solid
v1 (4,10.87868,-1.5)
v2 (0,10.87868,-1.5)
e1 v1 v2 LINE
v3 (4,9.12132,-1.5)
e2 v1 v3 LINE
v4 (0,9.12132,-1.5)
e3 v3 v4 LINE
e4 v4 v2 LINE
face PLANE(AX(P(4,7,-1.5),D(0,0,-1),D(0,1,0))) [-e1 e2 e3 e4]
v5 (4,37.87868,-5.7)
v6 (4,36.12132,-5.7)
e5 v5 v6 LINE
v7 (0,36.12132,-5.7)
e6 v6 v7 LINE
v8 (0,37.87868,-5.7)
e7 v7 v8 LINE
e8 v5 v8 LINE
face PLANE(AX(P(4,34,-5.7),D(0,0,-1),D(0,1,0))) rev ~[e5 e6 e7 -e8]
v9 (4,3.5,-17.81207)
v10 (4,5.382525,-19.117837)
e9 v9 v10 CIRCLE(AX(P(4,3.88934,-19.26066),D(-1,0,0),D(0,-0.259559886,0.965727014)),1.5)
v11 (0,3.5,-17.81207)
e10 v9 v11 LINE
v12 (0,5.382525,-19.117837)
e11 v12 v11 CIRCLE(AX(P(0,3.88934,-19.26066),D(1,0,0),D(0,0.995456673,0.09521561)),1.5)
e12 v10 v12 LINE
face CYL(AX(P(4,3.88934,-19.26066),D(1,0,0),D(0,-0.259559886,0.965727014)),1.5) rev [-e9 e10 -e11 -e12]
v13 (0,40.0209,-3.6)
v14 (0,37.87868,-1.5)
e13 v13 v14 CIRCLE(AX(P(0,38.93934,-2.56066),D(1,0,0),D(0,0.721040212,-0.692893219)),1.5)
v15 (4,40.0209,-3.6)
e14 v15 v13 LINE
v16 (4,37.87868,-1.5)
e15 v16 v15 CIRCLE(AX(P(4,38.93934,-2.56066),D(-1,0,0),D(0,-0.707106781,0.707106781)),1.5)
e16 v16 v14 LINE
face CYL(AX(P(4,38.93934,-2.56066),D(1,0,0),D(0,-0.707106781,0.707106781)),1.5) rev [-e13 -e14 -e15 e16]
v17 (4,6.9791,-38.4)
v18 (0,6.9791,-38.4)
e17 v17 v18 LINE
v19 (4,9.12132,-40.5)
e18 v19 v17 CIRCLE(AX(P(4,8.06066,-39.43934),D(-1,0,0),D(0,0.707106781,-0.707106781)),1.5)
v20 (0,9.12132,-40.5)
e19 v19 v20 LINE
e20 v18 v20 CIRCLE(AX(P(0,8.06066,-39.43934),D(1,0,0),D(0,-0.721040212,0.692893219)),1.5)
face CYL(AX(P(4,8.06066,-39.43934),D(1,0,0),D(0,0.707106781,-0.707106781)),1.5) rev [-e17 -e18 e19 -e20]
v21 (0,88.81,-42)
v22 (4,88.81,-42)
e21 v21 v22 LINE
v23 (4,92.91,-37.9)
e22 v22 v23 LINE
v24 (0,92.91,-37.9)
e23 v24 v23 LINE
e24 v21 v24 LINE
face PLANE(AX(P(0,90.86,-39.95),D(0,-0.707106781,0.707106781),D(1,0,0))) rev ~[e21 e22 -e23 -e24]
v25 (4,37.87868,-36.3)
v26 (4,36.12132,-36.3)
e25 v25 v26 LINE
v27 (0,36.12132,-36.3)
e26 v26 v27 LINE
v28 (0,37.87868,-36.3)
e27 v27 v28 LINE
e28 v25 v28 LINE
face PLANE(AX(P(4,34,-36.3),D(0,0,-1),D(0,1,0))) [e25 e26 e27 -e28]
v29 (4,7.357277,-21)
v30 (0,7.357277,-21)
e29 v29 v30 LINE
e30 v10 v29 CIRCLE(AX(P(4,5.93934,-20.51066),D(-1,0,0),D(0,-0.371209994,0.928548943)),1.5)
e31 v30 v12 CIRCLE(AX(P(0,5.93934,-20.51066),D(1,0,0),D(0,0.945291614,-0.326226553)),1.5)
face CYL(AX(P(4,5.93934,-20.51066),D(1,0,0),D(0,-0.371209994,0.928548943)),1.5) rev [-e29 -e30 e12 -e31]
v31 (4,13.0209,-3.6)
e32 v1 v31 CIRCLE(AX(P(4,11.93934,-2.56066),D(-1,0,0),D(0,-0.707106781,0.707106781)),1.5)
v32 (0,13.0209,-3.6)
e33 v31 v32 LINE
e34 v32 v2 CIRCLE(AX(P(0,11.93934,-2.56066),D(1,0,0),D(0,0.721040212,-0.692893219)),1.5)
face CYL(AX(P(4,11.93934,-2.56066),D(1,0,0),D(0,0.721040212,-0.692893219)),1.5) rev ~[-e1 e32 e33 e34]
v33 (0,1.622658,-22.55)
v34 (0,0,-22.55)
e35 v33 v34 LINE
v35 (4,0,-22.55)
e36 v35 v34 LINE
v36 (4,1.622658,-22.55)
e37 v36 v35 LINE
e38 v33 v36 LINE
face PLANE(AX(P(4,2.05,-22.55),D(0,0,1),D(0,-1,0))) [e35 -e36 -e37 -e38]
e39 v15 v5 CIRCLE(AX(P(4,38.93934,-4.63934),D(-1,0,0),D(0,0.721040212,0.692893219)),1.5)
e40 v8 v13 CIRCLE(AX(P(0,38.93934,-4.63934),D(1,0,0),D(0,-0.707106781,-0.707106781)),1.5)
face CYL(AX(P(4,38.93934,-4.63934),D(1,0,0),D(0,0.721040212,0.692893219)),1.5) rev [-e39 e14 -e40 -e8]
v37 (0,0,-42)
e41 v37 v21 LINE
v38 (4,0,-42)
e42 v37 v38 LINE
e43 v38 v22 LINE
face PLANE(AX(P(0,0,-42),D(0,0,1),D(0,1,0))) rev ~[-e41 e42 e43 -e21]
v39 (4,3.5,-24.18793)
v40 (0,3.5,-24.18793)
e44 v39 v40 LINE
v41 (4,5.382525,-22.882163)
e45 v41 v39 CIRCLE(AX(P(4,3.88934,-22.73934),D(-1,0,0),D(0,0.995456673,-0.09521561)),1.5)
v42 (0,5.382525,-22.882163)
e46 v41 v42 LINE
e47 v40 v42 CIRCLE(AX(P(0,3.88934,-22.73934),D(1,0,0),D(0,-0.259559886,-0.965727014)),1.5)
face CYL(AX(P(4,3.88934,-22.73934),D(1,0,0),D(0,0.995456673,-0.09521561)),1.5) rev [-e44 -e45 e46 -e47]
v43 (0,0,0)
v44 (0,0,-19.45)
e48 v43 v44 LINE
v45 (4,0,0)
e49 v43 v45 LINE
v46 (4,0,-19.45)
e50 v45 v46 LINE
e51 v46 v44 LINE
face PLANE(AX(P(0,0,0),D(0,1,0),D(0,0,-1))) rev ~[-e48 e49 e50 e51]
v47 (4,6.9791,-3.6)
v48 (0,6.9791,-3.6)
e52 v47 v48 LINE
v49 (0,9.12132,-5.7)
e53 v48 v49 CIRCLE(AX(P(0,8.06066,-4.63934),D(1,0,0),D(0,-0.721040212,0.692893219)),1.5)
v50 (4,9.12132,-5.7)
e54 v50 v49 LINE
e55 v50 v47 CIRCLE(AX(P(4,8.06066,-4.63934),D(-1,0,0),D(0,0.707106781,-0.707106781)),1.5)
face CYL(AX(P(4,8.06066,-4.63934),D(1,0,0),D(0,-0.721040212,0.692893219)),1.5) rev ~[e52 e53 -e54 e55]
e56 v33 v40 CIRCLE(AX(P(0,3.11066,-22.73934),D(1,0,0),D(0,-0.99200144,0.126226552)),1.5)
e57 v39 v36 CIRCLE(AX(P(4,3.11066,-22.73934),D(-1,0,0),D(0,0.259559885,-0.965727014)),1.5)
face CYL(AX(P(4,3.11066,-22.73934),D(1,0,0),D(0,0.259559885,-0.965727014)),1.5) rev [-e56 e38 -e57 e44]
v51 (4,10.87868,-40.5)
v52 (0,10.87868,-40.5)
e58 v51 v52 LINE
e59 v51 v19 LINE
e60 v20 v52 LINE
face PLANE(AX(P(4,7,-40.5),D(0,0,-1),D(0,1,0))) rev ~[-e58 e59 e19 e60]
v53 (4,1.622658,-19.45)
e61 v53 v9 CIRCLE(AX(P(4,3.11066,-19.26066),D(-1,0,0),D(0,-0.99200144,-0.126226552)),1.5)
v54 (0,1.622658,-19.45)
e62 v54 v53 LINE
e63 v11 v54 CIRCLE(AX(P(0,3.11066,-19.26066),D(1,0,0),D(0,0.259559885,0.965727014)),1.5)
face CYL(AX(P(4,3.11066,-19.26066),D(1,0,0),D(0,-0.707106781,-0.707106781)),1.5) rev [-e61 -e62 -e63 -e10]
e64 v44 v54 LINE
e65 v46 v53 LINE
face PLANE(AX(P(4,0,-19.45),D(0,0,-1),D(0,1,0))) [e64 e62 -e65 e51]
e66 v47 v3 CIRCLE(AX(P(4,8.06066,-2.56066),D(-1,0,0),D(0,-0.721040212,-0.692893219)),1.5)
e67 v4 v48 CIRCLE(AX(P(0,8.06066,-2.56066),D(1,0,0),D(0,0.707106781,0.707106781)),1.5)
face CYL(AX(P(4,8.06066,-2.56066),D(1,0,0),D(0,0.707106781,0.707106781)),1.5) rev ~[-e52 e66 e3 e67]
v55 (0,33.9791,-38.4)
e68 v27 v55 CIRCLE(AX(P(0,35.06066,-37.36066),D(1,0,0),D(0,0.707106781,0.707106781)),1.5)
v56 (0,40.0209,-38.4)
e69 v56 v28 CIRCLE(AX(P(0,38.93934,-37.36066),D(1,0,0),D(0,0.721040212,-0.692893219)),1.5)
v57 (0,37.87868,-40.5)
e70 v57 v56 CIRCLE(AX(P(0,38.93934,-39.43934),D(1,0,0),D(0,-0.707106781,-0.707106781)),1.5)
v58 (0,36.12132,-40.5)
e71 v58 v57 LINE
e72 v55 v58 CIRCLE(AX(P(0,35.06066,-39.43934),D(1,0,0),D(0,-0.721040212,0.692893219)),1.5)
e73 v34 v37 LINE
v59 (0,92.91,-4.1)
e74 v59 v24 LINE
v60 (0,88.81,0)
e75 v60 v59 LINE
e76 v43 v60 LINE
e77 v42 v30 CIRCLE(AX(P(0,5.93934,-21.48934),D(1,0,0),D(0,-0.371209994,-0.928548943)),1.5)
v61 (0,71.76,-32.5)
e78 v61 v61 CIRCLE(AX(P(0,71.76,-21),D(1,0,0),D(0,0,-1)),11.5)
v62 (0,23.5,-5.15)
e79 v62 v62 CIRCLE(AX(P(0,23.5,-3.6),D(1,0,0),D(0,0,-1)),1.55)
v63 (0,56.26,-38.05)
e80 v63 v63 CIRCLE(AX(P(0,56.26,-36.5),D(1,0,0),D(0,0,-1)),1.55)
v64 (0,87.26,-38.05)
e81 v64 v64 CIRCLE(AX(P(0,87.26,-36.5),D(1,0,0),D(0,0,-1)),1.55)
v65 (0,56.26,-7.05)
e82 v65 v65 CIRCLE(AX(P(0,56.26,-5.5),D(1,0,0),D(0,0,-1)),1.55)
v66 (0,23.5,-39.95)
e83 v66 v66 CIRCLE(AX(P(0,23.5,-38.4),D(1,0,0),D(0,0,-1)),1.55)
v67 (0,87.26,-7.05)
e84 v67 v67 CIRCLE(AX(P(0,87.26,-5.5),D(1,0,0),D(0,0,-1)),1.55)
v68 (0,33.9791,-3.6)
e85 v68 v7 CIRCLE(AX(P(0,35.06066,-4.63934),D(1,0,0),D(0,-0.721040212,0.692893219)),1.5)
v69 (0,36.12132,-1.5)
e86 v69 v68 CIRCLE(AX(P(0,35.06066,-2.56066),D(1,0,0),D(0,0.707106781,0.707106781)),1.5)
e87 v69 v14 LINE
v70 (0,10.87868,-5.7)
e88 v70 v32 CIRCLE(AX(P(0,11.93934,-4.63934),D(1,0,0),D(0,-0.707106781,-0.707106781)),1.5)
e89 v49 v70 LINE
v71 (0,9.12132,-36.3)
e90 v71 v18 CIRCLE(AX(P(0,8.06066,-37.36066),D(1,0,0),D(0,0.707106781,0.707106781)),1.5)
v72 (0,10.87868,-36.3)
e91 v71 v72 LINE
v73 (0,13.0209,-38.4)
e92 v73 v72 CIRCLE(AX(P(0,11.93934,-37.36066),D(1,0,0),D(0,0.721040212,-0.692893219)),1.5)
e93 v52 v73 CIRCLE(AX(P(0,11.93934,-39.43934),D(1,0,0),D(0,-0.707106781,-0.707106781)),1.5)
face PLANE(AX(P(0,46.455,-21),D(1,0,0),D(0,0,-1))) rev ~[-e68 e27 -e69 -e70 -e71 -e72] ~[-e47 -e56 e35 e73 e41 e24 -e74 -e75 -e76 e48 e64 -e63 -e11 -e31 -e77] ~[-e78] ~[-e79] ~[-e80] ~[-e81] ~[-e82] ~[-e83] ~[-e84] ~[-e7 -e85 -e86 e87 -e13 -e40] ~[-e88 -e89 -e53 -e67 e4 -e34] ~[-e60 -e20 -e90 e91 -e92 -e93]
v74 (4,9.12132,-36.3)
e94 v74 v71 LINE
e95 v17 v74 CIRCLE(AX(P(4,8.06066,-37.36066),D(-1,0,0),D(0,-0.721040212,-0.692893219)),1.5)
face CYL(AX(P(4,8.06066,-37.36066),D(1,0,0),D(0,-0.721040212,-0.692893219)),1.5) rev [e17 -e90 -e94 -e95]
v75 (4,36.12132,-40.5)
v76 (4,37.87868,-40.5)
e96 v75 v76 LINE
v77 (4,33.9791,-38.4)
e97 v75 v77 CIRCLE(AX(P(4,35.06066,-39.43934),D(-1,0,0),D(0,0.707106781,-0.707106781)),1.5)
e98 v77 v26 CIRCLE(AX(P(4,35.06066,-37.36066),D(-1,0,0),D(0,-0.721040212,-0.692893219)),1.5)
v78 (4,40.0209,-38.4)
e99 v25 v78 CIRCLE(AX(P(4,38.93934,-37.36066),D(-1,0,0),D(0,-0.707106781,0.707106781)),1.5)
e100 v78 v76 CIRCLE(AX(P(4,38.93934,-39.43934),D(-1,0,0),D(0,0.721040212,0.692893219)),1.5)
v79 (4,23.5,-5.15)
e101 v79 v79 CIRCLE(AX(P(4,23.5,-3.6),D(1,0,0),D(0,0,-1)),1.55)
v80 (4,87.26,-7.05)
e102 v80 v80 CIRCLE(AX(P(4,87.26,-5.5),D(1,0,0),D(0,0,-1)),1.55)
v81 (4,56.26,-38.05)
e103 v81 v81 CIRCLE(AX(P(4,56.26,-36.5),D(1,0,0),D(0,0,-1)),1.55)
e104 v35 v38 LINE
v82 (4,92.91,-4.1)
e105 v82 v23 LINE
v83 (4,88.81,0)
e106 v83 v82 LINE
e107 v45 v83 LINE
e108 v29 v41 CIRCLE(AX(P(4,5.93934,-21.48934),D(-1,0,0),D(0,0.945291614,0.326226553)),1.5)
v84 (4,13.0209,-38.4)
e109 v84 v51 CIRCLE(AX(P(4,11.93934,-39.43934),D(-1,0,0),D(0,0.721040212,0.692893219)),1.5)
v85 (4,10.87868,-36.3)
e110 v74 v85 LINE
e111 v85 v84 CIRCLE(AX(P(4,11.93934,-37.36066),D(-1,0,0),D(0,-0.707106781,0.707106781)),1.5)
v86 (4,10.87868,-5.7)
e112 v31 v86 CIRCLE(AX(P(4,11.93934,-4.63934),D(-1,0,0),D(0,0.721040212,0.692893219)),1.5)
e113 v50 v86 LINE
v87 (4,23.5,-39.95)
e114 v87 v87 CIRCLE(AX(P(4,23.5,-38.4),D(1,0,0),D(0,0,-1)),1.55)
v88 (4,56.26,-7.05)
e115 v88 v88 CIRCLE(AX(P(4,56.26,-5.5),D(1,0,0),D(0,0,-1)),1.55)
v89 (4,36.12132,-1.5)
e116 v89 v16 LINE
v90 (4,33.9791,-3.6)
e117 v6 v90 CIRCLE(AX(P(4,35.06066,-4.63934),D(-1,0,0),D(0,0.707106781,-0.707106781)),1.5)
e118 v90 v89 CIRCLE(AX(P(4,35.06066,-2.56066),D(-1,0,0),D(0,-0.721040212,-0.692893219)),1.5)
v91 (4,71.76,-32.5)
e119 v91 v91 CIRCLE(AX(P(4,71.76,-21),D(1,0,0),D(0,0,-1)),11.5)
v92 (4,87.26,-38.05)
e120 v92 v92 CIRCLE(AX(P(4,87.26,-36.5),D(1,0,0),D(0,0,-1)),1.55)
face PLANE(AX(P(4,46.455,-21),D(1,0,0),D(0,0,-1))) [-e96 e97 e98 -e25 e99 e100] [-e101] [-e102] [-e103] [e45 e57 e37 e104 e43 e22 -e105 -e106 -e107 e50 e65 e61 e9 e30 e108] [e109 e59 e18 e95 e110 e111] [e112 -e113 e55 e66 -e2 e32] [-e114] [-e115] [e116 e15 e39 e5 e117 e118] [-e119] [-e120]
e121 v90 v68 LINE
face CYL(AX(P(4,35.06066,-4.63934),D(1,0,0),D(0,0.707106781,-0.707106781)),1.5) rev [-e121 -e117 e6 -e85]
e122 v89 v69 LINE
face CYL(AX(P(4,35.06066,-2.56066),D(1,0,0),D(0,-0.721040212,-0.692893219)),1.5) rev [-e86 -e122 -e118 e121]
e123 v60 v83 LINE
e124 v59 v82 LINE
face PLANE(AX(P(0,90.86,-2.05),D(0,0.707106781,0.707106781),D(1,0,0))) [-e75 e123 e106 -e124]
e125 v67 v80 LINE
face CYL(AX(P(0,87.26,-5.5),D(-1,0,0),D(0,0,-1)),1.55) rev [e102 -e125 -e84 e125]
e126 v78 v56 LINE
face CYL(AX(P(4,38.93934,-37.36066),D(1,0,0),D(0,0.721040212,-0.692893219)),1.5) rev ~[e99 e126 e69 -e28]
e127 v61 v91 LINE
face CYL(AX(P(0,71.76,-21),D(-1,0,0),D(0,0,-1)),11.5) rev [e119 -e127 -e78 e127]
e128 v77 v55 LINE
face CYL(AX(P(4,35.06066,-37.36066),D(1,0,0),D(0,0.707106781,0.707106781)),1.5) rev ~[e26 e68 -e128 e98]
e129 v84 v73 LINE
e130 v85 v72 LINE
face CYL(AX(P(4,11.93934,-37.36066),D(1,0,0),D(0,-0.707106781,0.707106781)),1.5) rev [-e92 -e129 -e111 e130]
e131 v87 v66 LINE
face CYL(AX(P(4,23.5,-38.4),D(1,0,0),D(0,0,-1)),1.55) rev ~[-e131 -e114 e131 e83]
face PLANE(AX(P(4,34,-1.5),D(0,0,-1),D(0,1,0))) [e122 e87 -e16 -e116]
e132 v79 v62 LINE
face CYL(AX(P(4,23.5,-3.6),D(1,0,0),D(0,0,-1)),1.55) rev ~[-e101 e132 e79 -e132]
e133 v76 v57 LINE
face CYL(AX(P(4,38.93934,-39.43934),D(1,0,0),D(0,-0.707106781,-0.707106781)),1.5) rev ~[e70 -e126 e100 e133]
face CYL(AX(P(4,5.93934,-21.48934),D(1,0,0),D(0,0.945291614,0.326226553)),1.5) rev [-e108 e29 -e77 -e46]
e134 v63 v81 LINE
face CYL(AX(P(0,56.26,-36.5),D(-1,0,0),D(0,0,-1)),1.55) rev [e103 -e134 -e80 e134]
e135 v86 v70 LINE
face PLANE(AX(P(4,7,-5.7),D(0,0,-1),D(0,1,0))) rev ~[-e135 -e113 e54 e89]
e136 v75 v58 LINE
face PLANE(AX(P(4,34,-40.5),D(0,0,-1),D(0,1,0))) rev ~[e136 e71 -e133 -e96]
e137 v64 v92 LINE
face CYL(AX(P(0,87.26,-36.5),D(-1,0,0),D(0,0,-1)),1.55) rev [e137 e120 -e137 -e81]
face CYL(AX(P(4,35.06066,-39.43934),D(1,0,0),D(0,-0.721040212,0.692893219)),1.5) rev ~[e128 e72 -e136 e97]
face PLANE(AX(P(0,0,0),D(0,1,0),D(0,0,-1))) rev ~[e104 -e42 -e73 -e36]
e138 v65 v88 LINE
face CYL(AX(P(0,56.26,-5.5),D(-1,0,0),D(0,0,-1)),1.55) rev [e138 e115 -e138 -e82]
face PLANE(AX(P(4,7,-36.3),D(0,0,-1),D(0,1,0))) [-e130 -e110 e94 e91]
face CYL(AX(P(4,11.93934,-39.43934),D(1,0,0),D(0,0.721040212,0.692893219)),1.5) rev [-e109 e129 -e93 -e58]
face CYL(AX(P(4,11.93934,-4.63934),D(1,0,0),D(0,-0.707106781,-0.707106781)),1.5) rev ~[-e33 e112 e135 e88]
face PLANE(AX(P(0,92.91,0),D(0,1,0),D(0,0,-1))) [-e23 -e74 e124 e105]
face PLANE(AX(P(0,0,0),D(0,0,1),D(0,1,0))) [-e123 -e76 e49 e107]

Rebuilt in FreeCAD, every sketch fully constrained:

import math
import FreeCAD as App
import Part
import Sketcher

V = App.Vector
Q = App.Units.Quantity


def edges_at(feature, points):
    """Names of the edges that pass closest to the given points."""
    edges = feature.Shape.Edges
    near = lambda p: min(range(len(edges)), key=lambda i: edges[i].distToShape(Part.Vertex(*p))[0])
    return sorted({f"Edge{near(p) + 1}" for p in points})


def add_polygon(sketch, points):
    """Adds a closed chain of lines whose ends are joined by coincident constraints."""
    first, n = sketch.GeometryCount, len(points)
    for a, b in zip(points, points[1:] + points[:1]):
        sketch.addGeometry(Part.LineSegment(App.Vector(*a, 0), App.Vector(*b, 0)), False)
    for i in range(n):
        sketch.addConstraint(Sketcher.Constraint("Coincident", first + i, 2, first + (i + 1) % n, 1))

doc = App.newDocument("Part")
body = doc.addObject("PartDesign::Body", "Body")

sketch1 = body.newObject("Sketcher::SketchObject", "Sketch")
sketch1.AttachmentSupport = (doc.getObject("YZ_Plane"), [""])
sketch1.MapMode = "FlatFace"
add_polygon(sketch1, [(92.91, 0), (0, 0), (0, -42), (92.91, -42)])
sketch1.addGeometry(Part.Circle(V(56.26, -5.5, 0), V(0, 0, 1), 1.55), False)
sketch1.addGeometry(Part.Circle(V(56.26, -36.5, 0), V(0, 0, 1), 1.55), False)
sketch1.addGeometry(Part.Circle(V(87.26, -5.5, 0), V(0, 0, 1), 1.55), False)
sketch1.addGeometry(Part.Circle(V(71.76, -21, 0), V(0, 0, 1), 11.5), False)
sketch1.addGeometry(Part.Circle(V(87.26, -36.5, 0), V(0, 0, 1), 1.55), False)
sketch1.addConstraint(Sketcher.Constraint("Horizontal", 0))
sketch1.addConstraint(Sketcher.Constraint("Vertical", 1))
sketch1.addConstraint(Sketcher.Constraint("Horizontal", 2))
sketch1.addConstraint(Sketcher.Constraint("Vertical", 3))
sketch1.addConstraint(Sketcher.Constraint("Coincident", 0, 2, -1, 1))
sketch1.addConstraint(Sketcher.Constraint("Equal", 4, 5))
sketch1.addConstraint(Sketcher.Constraint("Equal", 5, 6))
sketch1.addConstraint(Sketcher.Constraint("Equal", 6, 8))
sketch1.addConstraint(Sketcher.Constraint("Horizontal", 4, 3, 6, 3))
sketch1.addConstraint(Sketcher.Constraint("Horizontal", 5, 3, 8, 3))
sketch1.addConstraint(Sketcher.Constraint("Vertical", 4, 3, 5, 3))
sketch1.addConstraint(Sketcher.Constraint("Vertical", 6, 3, 8, 3))
sketch1.addConstraint(Sketcher.Constraint("Diameter", 7, Q("23 mm")))
sketch1.addConstraint(Sketcher.Constraint("Diameter", 4, Q("3.1 mm")))
sketch1.addConstraint(Sketcher.Constraint("DistanceY", 1, 2, 1, 1, Q("42 mm")))
sketch1.addConstraint(Sketcher.Constraint("DistanceY", 7, 3, -1, 1, Q("21 mm")))
sketch1.addConstraint(Sketcher.Constraint("DistanceY", 5, 3, 4, 3, Q("31 mm")))
sketch1.addConstraint(Sketcher.Constraint("DistanceX", 4, 3, 6, 3, Q("31 mm")))
sketch1.addConstraint(Sketcher.Constraint("DistanceX", 0, 2, 0, 1, Q("92.91 mm")))
sketch1.addConstraint(Sketcher.Constraint("DistanceY", 4, 3, -1, 1, Q("5.5 mm")))
sketch1.addConstraint(Sketcher.Constraint("DistanceX", 7, 3, 6, 3, Q("15.5 mm")))
sketch1.addConstraint(Sketcher.Constraint("DistanceX", -1, 1, 4, 3, Q("56.26 mm")))
pad1 = body.newObject("PartDesign::Pad", "Pad")
pad1.Profile = sketch1
pad1.Length = 4

sketch2 = body.newObject("Sketcher::SketchObject", "Sketch001")
sketch2.AttachmentSupport = (doc.getObject("YZ_Plane"), [""])
sketch2.MapMode = "FlatFace"
sketch2.AttachmentOffset = App.Placement(V(0, 0, 4), App.Rotation())
sketch2.addGeometry(Part.Circle(V(23.5, -3.6, 0), V(0, 0, 1), 1.55), False)
sketch2.addGeometry(Part.Circle(V(23.5, -38.4, 0), V(0, 0, 1), 1.55), False)
add_polygon(sketch2, [(40, -1.5), (34, -1.5), (34, -5.7), (40, -5.7)])
add_polygon(sketch2, [(13, -1.5), (7, -1.5), (7, -5.7), (13, -5.7)])
add_polygon(sketch2, [(13, -36.3), (7, -36.3), (7, -40.5), (13, -40.5)])
add_polygon(sketch2, [(40, -36.3), (34, -36.3), (34, -40.5), (40, -40.5)])
sketch2.addConstraint(Sketcher.Constraint("Horizontal", 2))
sketch2.addConstraint(Sketcher.Constraint("Vertical", 3))
sketch2.addConstraint(Sketcher.Constraint("Horizontal", 4))
sketch2.addConstraint(Sketcher.Constraint("Vertical", 5))
sketch2.addConstraint(Sketcher.Constraint("Horizontal", 6))
sketch2.addConstraint(Sketcher.Constraint("Vertical", 7))
sketch2.addConstraint(Sketcher.Constraint("Horizontal", 8))
sketch2.addConstraint(Sketcher.Constraint("Vertical", 9))
sketch2.addConstraint(Sketcher.Constraint("Horizontal", 10))
sketch2.addConstraint(Sketcher.Constraint("Vertical", 11))
sketch2.addConstraint(Sketcher.Constraint("Horizontal", 12))
sketch2.addConstraint(Sketcher.Constraint("Vertical", 13))
sketch2.addConstraint(Sketcher.Constraint("Horizontal", 14))
sketch2.addConstraint(Sketcher.Constraint("Vertical", 15))
sketch2.addConstraint(Sketcher.Constraint("Horizontal", 16))
sketch2.addConstraint(Sketcher.Constraint("Vertical", 17))
sketch2.addConstraint(Sketcher.Constraint("Equal", 0, 1))
sketch2.addConstraint(Sketcher.Constraint("Horizontal", 5, 2, 6, 2))
sketch2.addConstraint(Sketcher.Constraint("Horizontal", 4, 2, 7, 2))
sketch2.addConstraint(Sketcher.Constraint("Horizontal", 13, 2, 14, 2))
sketch2.addConstraint(Sketcher.Constraint("Horizontal", 12, 2, 15, 2))
sketch2.addConstraint(Sketcher.Constraint("Vertical", 0, 3, 1, 3))
sketch2.addConstraint(Sketcher.Constraint("Vertical", 7, 2, 10, 2))
sketch2.addConstraint(Sketcher.Constraint("Vertical", 9, 2, 12, 2))
sketch2.addConstraint(Sketcher.Constraint("Vertical", 3, 2, 14, 2))
sketch2.addConstraint(Sketcher.Constraint("Vertical", 5, 2, 16, 2))
sketch2.addConstraint(Sketcher.Constraint("Equal", 4, 6))
sketch2.addConstraint(Sketcher.Constraint("Equal", 9, 11))
sketch2.addConstraint(Sketcher.Constraint("Diameter", 0, Q("3.1 mm")))
sketch2.addConstraint(Sketcher.Constraint("DistanceX", 2, 2, 2, 1, Q("6 mm")))
sketch2.addConstraint(Sketcher.Constraint("DistanceY", 3, 2, 3, 1, Q("4.2 mm")))
sketch2.addConstraint(Sketcher.Constraint("DistanceX", -1, 1, 2, 2, Q("34 mm")))
sketch2.addConstraint(Sketcher.Constraint("DistanceX", -1, 1, 6, 2, Q("7 mm")))
sketch2.addConstraint(Sketcher.Constraint("DistanceY", 11, 2, 6, 2, Q("39 mm")))
sketch2.addConstraint(Sketcher.Constraint("DistanceX", -1, 1, 0, 3, Q("23.5 mm")))
sketch2.addConstraint(Sketcher.Constraint("DistanceY", 0, 3, -1, 1, Q("3.6 mm")))
sketch2.addConstraint(Sketcher.Constraint("DistanceY", 1, 3, -1, 1, Q("38.4 mm")))
sketch2.addConstraint(Sketcher.Constraint("DistanceY", 2, 2, -1, 1, Q("1.5 mm")))
pocket1 = body.newObject("PartDesign::Pocket", "Pocket")
pocket1.Profile = sketch2
pocket1.Type = "ThroughAll"

sketch3 = body.newObject("Sketcher::SketchObject", "Sketch002")
sketch3.AttachmentSupport = (doc.getObject("YZ_Plane"), [""])
sketch3.MapMode = "FlatFace"
sketch3.AttachmentOffset = App.Placement(V(0, 0, 4), App.Rotation())
add_polygon(sketch3, [(2.05, -19.45), (0, -19.45), (0, -22.55), (2.05, -22.55), (2.05, -23.8), (4.95, -23.8), (4.95, -22.55), (7, -22.55), (7, -19.45), (4.95, -19.45), (4.95, -18.2), (2.05, -18.2)])
sketch3.addConstraint(Sketcher.Constraint("Horizontal", 0))
sketch3.addConstraint(Sketcher.Constraint("Vertical", 1))
sketch3.addConstraint(Sketcher.Constraint("Horizontal", 2))
sketch3.addConstraint(Sketcher.Constraint("Vertical", 3))
sketch3.addConstraint(Sketcher.Constraint("Horizontal", 4))
sketch3.addConstraint(Sketcher.Constraint("Vertical", 5))
sketch3.addConstraint(Sketcher.Constraint("Horizontal", 6))
sketch3.addConstraint(Sketcher.Constraint("Vertical", 7))
sketch3.addConstraint(Sketcher.Constraint("Horizontal", 8))
sketch3.addConstraint(Sketcher.Constraint("Vertical", 9))
sketch3.addConstraint(Sketcher.Constraint("Horizontal", 10))
sketch3.addConstraint(Sketcher.Constraint("Vertical", 11))
sketch3.addConstraint(Sketcher.Constraint("PointOnObject", 0, 2, -2))
sketch3.addConstraint(Sketcher.Constraint("Horizontal", 2, 2, 5, 2))
sketch3.addConstraint(Sketcher.Constraint("Horizontal", 0, 2, 7, 2))
sketch3.addConstraint(Sketcher.Constraint("Vertical", 5, 2, 8, 2))
sketch3.addConstraint(Sketcher.Constraint("Vertical", 3, 2, 10, 2))
sketch3.addConstraint(Sketcher.Constraint("Equal", 2, 6))
sketch3.addConstraint(Sketcher.Constraint("Equal", 5, 9))
sketch3.addConstraint(Sketcher.Constraint("DistanceX", 4, 1, 4, 2, Q("2.9 mm")))
sketch3.addConstraint(Sketcher.Constraint("DistanceY", 1, 2, 1, 1, Q("3.1 mm")))
sketch3.addConstraint(Sketcher.Constraint("DistanceX", -1, 1, 6, 2, Q("7 mm")))
sketch3.addConstraint(Sketcher.Constraint("DistanceY", 3, 2, 3, 1, Q("1.25 mm")))
sketch3.addConstraint(Sketcher.Constraint("DistanceY", 3, 2, -1, 1, Q("23.8 mm")))
pocket2 = body.newObject("PartDesign::Pocket", "Pocket001")
pocket2.Profile = sketch3
pocket2.Type = "ThroughAll"

sketch4 = body.newObject("Sketcher::SketchObject", "Sketch003")
sketch4.AttachmentSupport = (doc.getObject("YZ_Plane"), [""])
sketch4.MapMode = "FlatFace"
sketch4.AttachmentOffset = App.Placement(V(0, 0, 4), App.Rotation())
sketch4.addGeometry(Part.LineSegment(V(36.12132, -5.7, 0), V(37.87868, -5.7, 0)), False)
sketch4.addGeometry(Part.ArcOfCircle(Part.Circle(V(38.93934, -4.63934, 0), V(0, 0, 1), 1.5), math.radians(-135), math.radians(43.859571)), False)
sketch4.addGeometry(Part.ArcOfCircle(Part.Circle(V(38.93934, -2.56066, 0), V(0, 0, 1), 1.5), math.radians(-43.859571), math.radians(135)), False)
sketch4.addGeometry(Part.LineSegment(V(37.87868, -1.5, 0), V(36.12132, -1.5, 0)), False)
sketch4.addGeometry(Part.ArcOfCircle(Part.Circle(V(35.06066, -2.56066, 0), V(0, 0, 1), 1.5), math.radians(45), math.radians(223.859571)), False)
sketch4.addGeometry(Part.ArcOfCircle(Part.Circle(V(35.06066, -4.63934, 0), V(0, 0, 1), 1.5), math.radians(136.140429), math.radians(315)), False)
sketch4.addGeometry(Part.LineSegment(V(36.12132, -40.5, 0), V(37.87868, -40.5, 0)), False)
sketch4.addGeometry(Part.ArcOfCircle(Part.Circle(V(38.93934, -39.43934, 0), V(0, 0, 1), 1.5), math.radians(-135), math.radians(43.859571)), False)
sketch4.addGeometry(Part.ArcOfCircle(Part.Circle(V(38.93934, -37.36066, 0), V(0, 0, 1), 1.5), math.radians(-43.859571), math.radians(135)), False)
sketch4.addGeometry(Part.LineSegment(V(37.87868, -36.3, 0), V(36.12132, -36.3, 0)), False)
sketch4.addGeometry(Part.ArcOfCircle(Part.Circle(V(35.06066, -37.36066, 0), V(0, 0, 1), 1.5), math.radians(45), math.radians(223.859571)), False)
sketch4.addGeometry(Part.ArcOfCircle(Part.Circle(V(35.06066, -39.43934, 0), V(0, 0, 1), 1.5), math.radians(136.140429), math.radians(315)), False)
sketch4.addGeometry(Part.LineSegment(V(10.87868, -36.3, 0), V(9.12132, -36.3, 0)), False)
sketch4.addGeometry(Part.ArcOfCircle(Part.Circle(V(8.06066, -37.36066, 0), V(0, 0, 1), 1.5), math.radians(45), math.radians(223.859571)), False)
sketch4.addGeometry(Part.ArcOfCircle(Part.Circle(V(8.06066, -39.43934, 0), V(0, 0, 1), 1.5), math.radians(136.140429), math.radians(315)), False)
sketch4.addGeometry(Part.LineSegment(V(9.12132, -40.5, 0), V(10.87868, -40.5, 0)), False)
sketch4.addGeometry(Part.ArcOfCircle(Part.Circle(V(11.93934, -39.43934, 0), V(0, 0, 1), 1.5), math.radians(-135), math.radians(43.859571)), False)
sketch4.addGeometry(Part.ArcOfCircle(Part.Circle(V(11.93934, -37.36066, 0), V(0, 0, 1), 1.5), math.radians(-43.859571), math.radians(135)), False)
sketch4.addGeometry(Part.LineSegment(V(9.12132, -5.7, 0), V(10.87868, -5.7, 0)), False)
sketch4.addGeometry(Part.ArcOfCircle(Part.Circle(V(11.93934, -4.63934, 0), V(0, 0, 1), 1.5), math.radians(-135), math.radians(43.859571)), False)
sketch4.addGeometry(Part.ArcOfCircle(Part.Circle(V(11.93934, -2.56066, 0), V(0, 0, 1), 1.5), math.radians(-43.859571), math.radians(135)), False)
sketch4.addGeometry(Part.LineSegment(V(10.87868, -1.5, 0), V(9.12132, -1.5, 0)), False)
sketch4.addGeometry(Part.ArcOfCircle(Part.Circle(V(8.06066, -2.56066, 0), V(0, 0, 1), 1.5), math.radians(45), math.radians(223.859571)), False)
sketch4.addGeometry(Part.ArcOfCircle(Part.Circle(V(8.06066, -4.63934, 0), V(0, 0, 1), 1.5), math.radians(136.140429), math.radians(315)), False)
sketch4.addConstraint(Sketcher.Constraint("Coincident", 0, 2, 1, 1))
sketch4.addConstraint(Sketcher.Constraint("Coincident", 1, 2, 2, 1))
sketch4.addConstraint(Sketcher.Constraint("Coincident", 2, 2, 3, 1))
sketch4.addConstraint(Sketcher.Constraint("Coincident", 3, 2, 4, 1))
sketch4.addConstraint(Sketcher.Constraint("Coincident", 4, 2, 5, 1))
sketch4.addConstraint(Sketcher.Constraint("Coincident", 5, 2, 0, 1))
sketch4.addConstraint(Sketcher.Constraint("Coincident", 6, 2, 7, 1))
sketch4.addConstraint(Sketcher.Constraint("Coincident", 7, 2, 8, 1))
sketch4.addConstraint(Sketcher.Constraint("Coincident", 8, 2, 9, 1))
sketch4.addConstraint(Sketcher.Constraint("Coincident", 9, 2, 10, 1))
sketch4.addConstraint(Sketcher.Constraint("Coincident", 10, 2, 11, 1))
sketch4.addConstraint(Sketcher.Constraint("Coincident", 11, 2, 6, 1))
sketch4.addConstraint(Sketcher.Constraint("Coincident", 12, 2, 13, 1))
sketch4.addConstraint(Sketcher.Constraint("Coincident", 13, 2, 14, 1))
sketch4.addConstraint(Sketcher.Constraint("Coincident", 14, 2, 15, 1))
sketch4.addConstraint(Sketcher.Constraint("Coincident", 15, 2, 16, 1))
sketch4.addConstraint(Sketcher.Constraint("Coincident", 16, 2, 17, 1))
sketch4.addConstraint(Sketcher.Constraint("Coincident", 17, 2, 12, 1))
sketch4.addConstraint(Sketcher.Constraint("Coincident", 18, 2, 19, 1))
sketch4.addConstraint(Sketcher.Constraint("Coincident", 19, 2, 20, 1))
sketch4.addConstraint(Sketcher.Constraint("Coincident", 20, 2, 21, 1))
sketch4.addConstraint(Sketcher.Constraint("Coincident", 21, 2, 22, 1))
sketch4.addConstraint(Sketcher.Constraint("Coincident", 22, 2, 23, 1))
sketch4.addConstraint(Sketcher.Constraint("Coincident", 23, 2, 18, 1))
sketch4.addConstraint(Sketcher.Constraint("Horizontal", 0))
sketch4.addConstraint(Sketcher.Constraint("Horizontal", 3))
sketch4.addConstraint(Sketcher.Constraint("Horizontal", 6))
sketch4.addConstraint(Sketcher.Constraint("Horizontal", 9))
sketch4.addConstraint(Sketcher.Constraint("Horizontal", 12))
sketch4.addConstraint(Sketcher.Constraint("Horizontal", 15))
sketch4.addConstraint(Sketcher.Constraint("Horizontal", 18))
sketch4.addConstraint(Sketcher.Constraint("Horizontal", 21))
sketch4.addConstraint(Sketcher.Constraint("Equal", 1, 2))
sketch4.addConstraint(Sketcher.Constraint("Equal", 2, 4))
sketch4.addConstraint(Sketcher.Constraint("Equal", 4, 5))
sketch4.addConstraint(Sketcher.Constraint("Equal", 5, 7))
sketch4.addConstraint(Sketcher.Constraint("Equal", 7, 8))
sketch4.addConstraint(Sketcher.Constraint("Equal", 8, 10))
sketch4.addConstraint(Sketcher.Constraint("Equal", 10, 11))
sketch4.addConstraint(Sketcher.Constraint("Equal", 11, 13))
sketch4.addConstraint(Sketcher.Constraint("Equal", 13, 14))
sketch4.addConstraint(Sketcher.Constraint("Equal", 14, 16))
sketch4.addConstraint(Sketcher.Constraint("Equal", 16, 17))
sketch4.addConstraint(Sketcher.Constraint("Equal", 17, 19))
sketch4.addConstraint(Sketcher.Constraint("Equal", 19, 20))
sketch4.addConstraint(Sketcher.Constraint("Equal", 20, 22))
sketch4.addConstraint(Sketcher.Constraint("Equal", 22, 23))
sketch4.addConstraint(Sketcher.Constraint("Horizontal", 2, 3, 4, 3))
sketch4.addConstraint(Sketcher.Constraint("Horizontal", 1, 3, 5, 3))
sketch4.addConstraint(Sketcher.Constraint("Horizontal", 8, 3, 10, 3))
sketch4.addConstraint(Sketcher.Constraint("Horizontal", 7, 3, 11, 3))
sketch4.addConstraint(Sketcher.Constraint("Horizontal", 10, 3, 13, 3))
sketch4.addConstraint(Sketcher.Constraint("Horizontal", 11, 3, 14, 3))
sketch4.addConstraint(Sketcher.Constraint("Horizontal", 14, 3, 16, 3))
sketch4.addConstraint(Sketcher.Constraint("Horizontal", 13, 3, 17, 3))
sketch4.addConstraint(Sketcher.Constraint("Horizontal", 5, 3, 19, 3))
sketch4.addConstraint(Sketcher.Constraint("Horizontal", 4, 3, 20, 3))
sketch4.addConstraint(Sketcher.Constraint("Horizontal", 20, 3, 22, 3))
sketch4.addConstraint(Sketcher.Constraint("Horizontal", 19, 3, 23, 3))
sketch4.addConstraint(Sketcher.Constraint("Horizontal", 1, 2, 4, 2))
sketch4.addConstraint(Sketcher.Constraint("Horizontal", 7, 2, 10, 2))
sketch4.addConstraint(Sketcher.Constraint("Horizontal", 9, 2, 12, 2))
sketch4.addConstraint(Sketcher.Constraint("Horizontal", 10, 2, 13, 2))
sketch4.addConstraint(Sketcher.Constraint("Horizontal", 11, 2, 14, 2))
sketch4.addConstraint(Sketcher.Constraint("Horizontal", 13, 2, 16, 2))
sketch4.addConstraint(Sketcher.Constraint("Horizontal", 5, 2, 18, 2))
sketch4.addConstraint(Sketcher.Constraint("Horizontal", 4, 2, 19, 2))
sketch4.addConstraint(Sketcher.Constraint("Horizontal", 3, 2, 20, 2))
sketch4.addConstraint(Sketcher.Constraint("Horizontal", 19, 2, 22, 2))
sketch4.addConstraint(Sketcher.Constraint("Vertical", 1, 3, 2, 3))
sketch4.addConstraint(Sketcher.Constraint("Vertical", 2, 3, 7, 3))
sketch4.addConstraint(Sketcher.Constraint("Vertical", 7, 3, 8, 3))
sketch4.addConstraint(Sketcher.Constraint("Vertical", 5, 3, 10, 3))
sketch4.addConstraint(Sketcher.Constraint("Vertical", 17, 3, 19, 3))
sketch4.addConstraint(Sketcher.Constraint("Vertical", 14, 3, 22, 3))
sketch4.addConstraint(Sketcher.Constraint("Vertical", 0, 2, 2, 2))
sketch4.addConstraint(Sketcher.Constraint("Vertical", 2, 2, 6, 2))
sketch4.addConstraint(Sketcher.Constraint("Vertical", 1, 2, 7, 2))
sketch4.addConstraint(Sketcher.Constraint("Vertical", 6, 2, 8, 2))
sketch4.addConstraint(Sketcher.Constraint("Equal", 9, 12))
sketch4.addConstraint(Sketcher.Constraint("Radius", 1, Q("1.5 mm")))
sketch4.addConstraint(Sketcher.Constraint("DistanceX", 13, 3, 10, 3, Q("27 mm")))
sketch4.addConstraint(Sketcher.Constraint("DistanceY", 0, 2, -1, 1, Q("5.7 mm")))
sketch4.addConstraint(Sketcher.Constraint("DistanceY", 1, 2, -1, 1, Q("3.6 mm")))
sketch4.addConstraint(Sketcher.Constraint("DistanceY", 6, 2, -1, 1, Q("40.5 mm")))
sketch4.addConstraint(Sketcher.Constraint("DistanceX", 0, 1, 0, 2, Q("1.757359 mm")))
sketch4.addConstraint(Sketcher.Constraint("DistanceX", -1, 1, 1, 2, Q("40.0209 mm")))
sketch4.addConstraint(Sketcher.Constraint("DistanceX", -1, 1, 4, 2, Q("33.9791 mm")))
pocket3 = body.newObject("PartDesign::Pocket", "Pocket002")
pocket3.Profile = sketch4
pocket3.Type = "ThroughAll"

sketch5 = body.newObject("Sketcher::SketchObject", "Sketch004")
sketch5.AttachmentSupport = (doc.getObject("YZ_Plane"), [""])
sketch5.MapMode = "FlatFace"
sketch5.AttachmentOffset = App.Placement(V(0, 0, 4), App.Rotation())
sketch5.addGeometry(Part.LineSegment(V(2.05, -20.32132, 0), V(2.05, -21.67868, 0)), False)
sketch5.addGeometry(Part.ArcOfCircle(Part.Circle(V(3.11066, -22.73934, 0), V(0, 0, 1), 1.5), math.radians(135), math.radians(285.043949)), False)
sketch5.addGeometry(Part.ArcOfCircle(Part.Circle(V(3.88934, -22.73934, 0), V(0, 0, 1), 1.5), math.radians(-105.043949), math.radians(-5.46373)), False)
sketch5.addGeometry(Part.ArcOfCircle(Part.Circle(V(5.93934, -21.48934, 0), V(0, 0, 1), 1.5), math.radians(-111.79026), math.radians(19.039902)), False)
sketch5.addGeometry(Part.ArcOfCircle(Part.Circle(V(5.93934, -20.51066, 0), V(0, 0, 1), 1.5), math.radians(-19.039902), math.radians(111.79026)), False)
sketch5.addGeometry(Part.ArcOfCircle(Part.Circle(V(3.88934, -19.26066, 0), V(0, 0, 1), 1.5), math.radians(5.46373), math.radians(105.043949)), False)
sketch5.addGeometry(Part.ArcOfCircle(Part.Circle(V(3.11066, -19.26066, 0), V(0, 0, 1), 1.5), math.radians(74.956051), math.radians(225)), False)
sketch5.addConstraint(Sketcher.Constraint("Coincident", 0, 2, 1, 1))
sketch5.addConstraint(Sketcher.Constraint("Coincident", 1, 2, 2, 1))
sketch5.addConstraint(Sketcher.Constraint("Coincident", 2, 2, 3, 1))
sketch5.addConstraint(Sketcher.Constraint("Coincident", 3, 2, 4, 1))
sketch5.addConstraint(Sketcher.Constraint("Coincident", 4, 2, 5, 1))
sketch5.addConstraint(Sketcher.Constraint("Coincident", 5, 2, 6, 1))
sketch5.addConstraint(Sketcher.Constraint("Coincident", 6, 2, 0, 1))
sketch5.addConstraint(Sketcher.Constraint("Vertical", 0))
sketch5.addConstraint(Sketcher.Constraint("Equal", 1, 2))
sketch5.addConstraint(Sketcher.Constraint("Equal", 2, 3))
sketch5.addConstraint(Sketcher.Constraint("Equal", 3, 4))
sketch5.addConstraint(Sketcher.Constraint("Equal", 4, 5))
sketch5.addConstraint(Sketcher.Constraint("Equal", 5, 6))
sketch5.addConstraint(Sketcher.Constraint("Horizontal", 1, 3, 2, 3))
sketch5.addConstraint(Sketcher.Constraint("Horizontal", 5, 3, 6, 3))
sketch5.addConstraint(Sketcher.Constraint("Vertical", 3, 3, 4, 3))
sketch5.addConstraint(Sketcher.Constraint("Vertical", 2, 3, 5, 3))
sketch5.addConstraint(Sketcher.Constraint("Vertical", 1, 3, 6, 3))
sketch5.addConstraint(Sketcher.Constraint("Vertical", 2, 2, 4, 2))
sketch5.addConstraint(Sketcher.Constraint("Radius", 1, Q("1.5 mm")))
sketch5.addConstraint(Sketcher.Constraint("DistanceY", 3, 2, -1, 1, Q("21 mm")))
sketch5.addConstraint(Sketcher.Constraint("DistanceX", -1, 1, 1, 2, Q("3.5 mm")))
sketch5.addConstraint(Sketcher.Constraint("DistanceX", -1, 1, 0, 2, Q("2.05 mm")))
sketch5.addConstraint(Sketcher.Constraint("DistanceX", 2, 3, 3, 3, Q("2.05 mm")))
sketch5.addConstraint(Sketcher.Constraint("DistanceY", 2, 3, 3, 3, Q("1.25 mm")))
sketch5.addConstraint(Sketcher.Constraint("DistanceY", 0, 2, 0, 1, Q("1.357359 mm")))
sketch5.addConstraint(Sketcher.Constraint("DistanceX", -1, 1, 1, 3, Q("3.11066 mm")))
pocket4 = body.newObject("PartDesign::Pocket", "Pocket003")
pocket4.Profile = sketch5
pocket4.Type = "ThroughAll"
doc.recompute()

chamfer = body.newObject("PartDesign::Chamfer", "Chamfer")
chamfer.Base = (pocket4, edges_at(pocket4, [(2, 92.91, 0), (2, 92.91, -42)]))
chamfer.Size = 4.1

doc.recompute()
